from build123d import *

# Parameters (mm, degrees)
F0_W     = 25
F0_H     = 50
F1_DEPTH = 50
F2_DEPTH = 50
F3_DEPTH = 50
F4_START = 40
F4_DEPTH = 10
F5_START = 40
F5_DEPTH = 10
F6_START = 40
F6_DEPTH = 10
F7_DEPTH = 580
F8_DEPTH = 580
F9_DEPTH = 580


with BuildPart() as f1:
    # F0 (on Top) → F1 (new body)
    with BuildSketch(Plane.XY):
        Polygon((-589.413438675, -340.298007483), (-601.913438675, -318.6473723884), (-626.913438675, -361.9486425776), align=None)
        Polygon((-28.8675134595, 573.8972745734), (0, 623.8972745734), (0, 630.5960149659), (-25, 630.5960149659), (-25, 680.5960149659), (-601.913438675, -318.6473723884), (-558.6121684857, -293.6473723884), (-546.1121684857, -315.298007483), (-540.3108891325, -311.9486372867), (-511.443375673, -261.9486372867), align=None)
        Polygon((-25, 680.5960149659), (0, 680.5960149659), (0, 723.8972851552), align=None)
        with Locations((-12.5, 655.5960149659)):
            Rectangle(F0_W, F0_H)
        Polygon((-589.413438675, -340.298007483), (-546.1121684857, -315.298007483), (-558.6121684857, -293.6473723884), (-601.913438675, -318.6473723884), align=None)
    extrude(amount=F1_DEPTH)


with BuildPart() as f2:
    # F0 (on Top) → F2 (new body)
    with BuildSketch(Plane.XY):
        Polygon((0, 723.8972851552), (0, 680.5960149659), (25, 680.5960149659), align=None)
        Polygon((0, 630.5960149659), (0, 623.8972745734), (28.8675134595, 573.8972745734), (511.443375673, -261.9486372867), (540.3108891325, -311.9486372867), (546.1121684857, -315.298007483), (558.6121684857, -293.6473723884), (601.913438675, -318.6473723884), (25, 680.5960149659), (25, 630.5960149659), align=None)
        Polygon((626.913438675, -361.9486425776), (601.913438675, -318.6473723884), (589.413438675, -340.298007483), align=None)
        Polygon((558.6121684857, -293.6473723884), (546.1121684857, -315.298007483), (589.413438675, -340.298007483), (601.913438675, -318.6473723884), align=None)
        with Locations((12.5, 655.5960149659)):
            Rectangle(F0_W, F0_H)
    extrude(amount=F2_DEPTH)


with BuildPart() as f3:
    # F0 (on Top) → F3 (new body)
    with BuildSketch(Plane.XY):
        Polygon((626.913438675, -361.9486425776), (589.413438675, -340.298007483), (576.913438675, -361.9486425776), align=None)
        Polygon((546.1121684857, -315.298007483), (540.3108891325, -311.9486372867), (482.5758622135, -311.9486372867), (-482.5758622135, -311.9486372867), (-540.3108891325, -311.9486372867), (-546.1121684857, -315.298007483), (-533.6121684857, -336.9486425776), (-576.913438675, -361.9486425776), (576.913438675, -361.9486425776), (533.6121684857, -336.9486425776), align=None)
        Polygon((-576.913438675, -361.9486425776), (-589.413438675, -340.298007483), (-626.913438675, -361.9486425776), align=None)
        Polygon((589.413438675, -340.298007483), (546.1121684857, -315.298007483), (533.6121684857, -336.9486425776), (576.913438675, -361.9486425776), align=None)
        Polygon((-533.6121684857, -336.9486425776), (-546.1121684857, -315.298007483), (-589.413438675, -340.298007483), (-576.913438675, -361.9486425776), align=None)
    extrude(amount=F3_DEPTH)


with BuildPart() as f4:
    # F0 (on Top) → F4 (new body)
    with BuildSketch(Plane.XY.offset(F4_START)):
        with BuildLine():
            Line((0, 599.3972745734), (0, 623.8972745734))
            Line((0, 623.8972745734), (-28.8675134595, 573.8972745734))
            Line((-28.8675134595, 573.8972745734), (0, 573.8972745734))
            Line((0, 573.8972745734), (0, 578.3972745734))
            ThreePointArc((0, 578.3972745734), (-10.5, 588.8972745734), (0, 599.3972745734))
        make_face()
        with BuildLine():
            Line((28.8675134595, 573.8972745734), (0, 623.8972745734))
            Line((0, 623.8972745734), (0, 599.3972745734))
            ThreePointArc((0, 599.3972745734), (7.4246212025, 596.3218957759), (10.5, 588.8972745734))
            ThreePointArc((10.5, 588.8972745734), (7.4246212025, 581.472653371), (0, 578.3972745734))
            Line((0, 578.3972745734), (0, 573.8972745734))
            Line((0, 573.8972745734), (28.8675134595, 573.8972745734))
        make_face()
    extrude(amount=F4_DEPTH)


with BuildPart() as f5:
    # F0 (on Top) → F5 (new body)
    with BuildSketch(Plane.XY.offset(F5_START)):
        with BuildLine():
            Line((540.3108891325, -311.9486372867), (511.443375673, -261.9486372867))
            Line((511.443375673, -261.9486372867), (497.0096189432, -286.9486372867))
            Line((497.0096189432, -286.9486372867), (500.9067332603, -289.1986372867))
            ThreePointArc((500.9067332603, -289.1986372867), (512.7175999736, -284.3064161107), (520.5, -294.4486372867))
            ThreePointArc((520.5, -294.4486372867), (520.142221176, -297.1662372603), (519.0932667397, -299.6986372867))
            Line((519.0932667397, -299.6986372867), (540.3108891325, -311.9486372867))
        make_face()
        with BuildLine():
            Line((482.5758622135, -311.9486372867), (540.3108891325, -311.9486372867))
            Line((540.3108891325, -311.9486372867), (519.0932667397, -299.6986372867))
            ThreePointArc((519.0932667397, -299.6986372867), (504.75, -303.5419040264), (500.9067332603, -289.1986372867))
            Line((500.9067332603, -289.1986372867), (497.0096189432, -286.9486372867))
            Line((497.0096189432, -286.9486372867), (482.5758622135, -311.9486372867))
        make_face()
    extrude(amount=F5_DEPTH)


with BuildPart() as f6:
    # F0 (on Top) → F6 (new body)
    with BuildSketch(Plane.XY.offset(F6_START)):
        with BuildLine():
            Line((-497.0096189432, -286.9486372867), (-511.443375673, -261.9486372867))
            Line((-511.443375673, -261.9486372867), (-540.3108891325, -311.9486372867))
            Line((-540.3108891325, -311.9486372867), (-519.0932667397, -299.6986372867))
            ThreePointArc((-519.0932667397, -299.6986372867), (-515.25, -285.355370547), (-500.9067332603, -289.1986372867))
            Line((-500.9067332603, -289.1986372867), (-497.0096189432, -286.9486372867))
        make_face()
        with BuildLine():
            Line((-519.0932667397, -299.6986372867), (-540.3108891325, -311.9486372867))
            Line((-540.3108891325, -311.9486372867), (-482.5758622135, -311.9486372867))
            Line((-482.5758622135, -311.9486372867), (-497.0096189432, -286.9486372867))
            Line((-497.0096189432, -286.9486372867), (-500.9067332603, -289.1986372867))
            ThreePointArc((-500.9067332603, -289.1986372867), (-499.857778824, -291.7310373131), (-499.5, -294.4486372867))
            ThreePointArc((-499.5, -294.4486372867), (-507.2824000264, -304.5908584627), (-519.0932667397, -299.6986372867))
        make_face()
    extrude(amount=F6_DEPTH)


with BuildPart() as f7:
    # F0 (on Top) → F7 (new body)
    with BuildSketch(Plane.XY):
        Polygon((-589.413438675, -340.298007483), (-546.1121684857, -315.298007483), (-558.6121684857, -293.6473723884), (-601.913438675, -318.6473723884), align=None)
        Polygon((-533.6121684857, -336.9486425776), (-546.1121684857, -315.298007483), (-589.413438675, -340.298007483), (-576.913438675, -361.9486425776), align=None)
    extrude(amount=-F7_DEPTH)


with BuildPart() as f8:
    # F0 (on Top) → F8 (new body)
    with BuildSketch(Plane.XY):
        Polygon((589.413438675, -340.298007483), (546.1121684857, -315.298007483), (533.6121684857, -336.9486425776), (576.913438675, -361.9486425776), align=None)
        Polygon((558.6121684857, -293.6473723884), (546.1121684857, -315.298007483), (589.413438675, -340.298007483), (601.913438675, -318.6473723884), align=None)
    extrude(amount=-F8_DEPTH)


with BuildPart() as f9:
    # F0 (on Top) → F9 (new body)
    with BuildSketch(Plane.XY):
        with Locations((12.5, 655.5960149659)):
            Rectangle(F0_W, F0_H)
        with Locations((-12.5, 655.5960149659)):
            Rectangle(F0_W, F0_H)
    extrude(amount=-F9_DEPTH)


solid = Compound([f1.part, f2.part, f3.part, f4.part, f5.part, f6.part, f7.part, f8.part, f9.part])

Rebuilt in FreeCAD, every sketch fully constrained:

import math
import FreeCAD as App
import Part
import Sketcher
Q = App.Units.Quantity


def add_polygon(sketch, points):
    """Adds a closed chain of lines whose ends are joined by coincident constraints."""
    first, n = sketch.GeometryCount, len(points)
    for a, b in zip(points, points[1:] + points[:1]):
        sketch.addGeometry(Part.LineSegment(App.Vector(*a, 0), App.Vector(*b, 0)), False)
    for i in range(n):
        sketch.addConstraint(Sketcher.Constraint("Coincident", first + i, 2, first + (i + 1) % n, 1))

doc = App.newDocument("Part")
body = doc.addObject("PartDesign::Body", "Body")

# Sketch on XY plane
sketch1 = doc.addObject("Sketcher::SketchObject", "Sketch")
body.addObject(sketch1)
sketch1.AttachmentSupport = (doc.XY_Plane, [""])
sketch1.MapMode = "FlatFace"
add_polygon(sketch1, [(-627, -362), (-546, -315), (-540, -312), (0, 624), (0, 724)])  # lines 0-4
sketch1.addConstraint([
    Sketcher.Constraint("Vertical", 3),
    Sketcher.Constraint("PointOnObject", 2, 2, -2),
    Sketcher.Constraint("Parallel", 0, 1),
    Sketcher.Constraint("Parallel", 2, 4),
    Sketcher.Constraint("Angle", 0, Q("30 deg")),
    Sketcher.Constraint("Angle", 2, Q("60 deg")),
    Sketcher.Constraint("DistanceY", 3, 1, 3, 2, Q("100.000011 mm")),
    Sketcher.Constraint("Distance", 0, Q("93.30127 mm")),
    Sketcher.Constraint("Distance", 2, Q("1080.621778 mm")),
    Sketcher.Constraint("DistanceY", 0, 2, -1, 1, Q("315.298007 mm")),
])
pad1 = doc.addObject("PartDesign::Pad", "Pad")
body.addObject(pad1)
pad1.Profile = sketch1
pad1.Length = 50
body2 = doc.addObject("PartDesign::Body", "Body001")

# Sketch on XY plane
sketch2 = doc.addObject("Sketcher::SketchObject", "Sketch001")
body2.addObject(sketch2)
sketch2.AttachmentSupport = (doc.getObject("XY_Plane001"), [""])
sketch2.MapMode = "FlatFace"
add_polygon(sketch2, [(0, 724), (0, 624), (540, -312), (546, -315), (627, -362)])  # lines 0-4
sketch2.addConstraint([
    Sketcher.Constraint("Vertical", 0),
    Sketcher.Constraint("PointOnObject", 0, 2, -2),
    Sketcher.Constraint("Parallel", 2, 3),
    Sketcher.Constraint("Parallel", 1, 4),
    Sketcher.Constraint("Angle", 1, Q("-60 deg")),
    Sketcher.Constraint("Angle", 2, Q("-30 deg")),
    Sketcher.Constraint("DistanceY", 0, 2, 0, 1, Q("100.000011 mm")),
    Sketcher.Constraint("Distance", 1, Q("1080.621778 mm")),
    Sketcher.Constraint("Distance", 2, Q("6.69874 mm")),
    Sketcher.Constraint("DistanceY", -1, 1, 0, 2, Q("623.897275 mm")),
])
pad2 = doc.addObject("PartDesign::Pad", "Pad001")
body2.addObject(pad2)
pad2.Profile = sketch2
pad2.Length = 50
body3 = doc.addObject("PartDesign::Body", "Body002")

# Sketch on XY plane
sketch3 = doc.addObject("Sketcher::SketchObject", "Sketch002")
body3.addObject(sketch3)
sketch3.AttachmentSupport = (doc.getObject("XY_Plane002"), [""])
sketch3.MapMode = "FlatFace"
add_polygon(sketch3, [(627, -362), (546, -315), (540, -312), (-540, -312), (-546, -315), (-627, -362)])  # lines 0-5
sketch3.addConstraint([
    Sketcher.Constraint("Horizontal", 2),
    Sketcher.Constraint("Horizontal", 5),
    Sketcher.Constraint("Symmetric", 0, 2, 3, 2, -2),
    Sketcher.Constraint("Parallel", 0, 1),
    Sketcher.Constraint("Parallel", 3, 4),
    Sketcher.Constraint("Equal", 1, 3),
    Sketcher.Constraint("Angle", 0, Q("150 deg")),
    Sketcher.Constraint("DistanceX", 2, 2, 2, 1, Q("1080.621778 mm")),
    Sketcher.Constraint("Distance", 0, Q("93.30127 mm")),
    Sketcher.Constraint("Distance", 1, Q("6.69874 mm")),
    Sketcher.Constraint("DistanceY", 0, 2, -1, 1, Q("315.298007 mm")),
])
pad3 = doc.addObject("PartDesign::Pad", "Pad002")
body3.addObject(pad3)
pad3.Profile = sketch3
pad3.Length = 50
body4 = doc.addObject("PartDesign::Body", "Body003")

# Sketch on XY plane
sketch4 = doc.addObject("Sketcher::SketchObject", "Sketch003")
body4.addObject(sketch4)
sketch4.AttachmentSupport = (doc.getObject("XY_Plane003"), [""])
sketch4.MapMode = "FlatFace"
sketch4.AttachmentOffset = App.Placement(App.Vector(0, 0, 40), App.Rotation())
add_polygon(sketch4, [(0, 624), (-29, 574), (29, 574)])  # lines 0-2
sketch4.addGeometry(Part.ArcOfCircle(Part.Circle(App.Vector(0, 589, 0), App.Vector(0, 0, 1), 10), math.radians(90), math.radians(270)), False)  # 3
sketch4.addGeometry(Part.ArcOfCircle(Part.Circle(App.Vector(0, 589, 0), App.Vector(0, 0, 1), 10), math.radians(0), math.radians(90)), False)  # 4
sketch4.addGeometry(Part.ArcOfCircle(Part.Circle(App.Vector(0, 589, 0), App.Vector(0, 0, 1), 10), math.radians(-90), math.radians(0)), False)  # 5
sketch4.addConstraint([
    Sketcher.Constraint("Tangent", 3, 1, 4, 2),
    Sketcher.Constraint("Tangent", 4, 1, 5, 2),
    Sketcher.Constraint("Tangent", 5, 1, 3, 2),
    Sketcher.Constraint("Horizontal", 1),
    Sketcher.Constraint("PointOnObject", 3, 3, -2),
    Sketcher.Constraint("PointOnObject", 2, 2, -2),
    Sketcher.Constraint("PointOnObject", 3, 1, -2),
    Sketcher.Constraint("PointOnObject", 5, 1, -2),
    Sketcher.Constraint("Horizontal", 5, 3, 4, 1),
    Sketcher.Constraint("Equal", 0, 2),
    Sketcher.Constraint("Radius", 3, Q("10.5 mm")),
    Sketcher.Constraint("Angle", 0, Q("-120 deg")),
    Sketcher.Constraint("DistanceY", 0, 2, 3, 3, Q("15 mm")),
    Sketcher.Constraint("DistanceY", 4, 3, 2, 2, Q("35 mm")),
    Sketcher.Constraint("DistanceY", -1, 1, 3, 3, Q("588.897275 mm")),
])
pad4 = doc.addObject("PartDesign::Pad", "Pad003")
body4.addObject(pad4)
pad4.Profile = sketch4
pad4.Length = 10
body5 = doc.addObject("PartDesign::Body", "Body004")

# Sketch on XY plane
sketch5 = doc.addObject("Sketcher::SketchObject", "Sketch004")
body5.addObject(sketch5)
sketch5.AttachmentSupport = (doc.getObject("XY_Plane004"), [""])
sketch5.MapMode = "FlatFace"
sketch5.AttachmentOffset = App.Placement(App.Vector(0, 0, 40), App.Rotation())
add_polygon(sketch5, [(540, -312), (511, -262), (497, -287), (483, -312)])  # lines 0-3
sketch5.addGeometry(Part.ArcOfCircle(Part.Circle(App.Vector(510, -294, 0), App.Vector(0, 0, 1), 10), math.radians(0), math.radians(150)), False)  # 4
sketch5.addGeometry(Part.ArcOfCircle(Part.Circle(App.Vector(510, -294, 0), App.Vector(0, 0, 1), 10), math.radians(-30), math.radians(0)), False)  # 5
sketch5.addGeometry(Part.ArcOfCircle(Part.Circle(App.Vector(510, -294, 0), App.Vector(0, 0, 1), 10), math.radians(150), math.radians(330)), False)  # 6
sketch5.addConstraint([
    Sketcher.Constraint("Tangent", 4, 1, 5, 2),
    Sketcher.Constraint("Tangent", 5, 1, 6, 2),
    Sketcher.Constraint("Tangent", 6, 1, 4, 2),
    Sketcher.Constraint("Horizontal", 3),
    Sketcher.Constraint("Parallel", 1, 2),
    Sketcher.Constraint("Horizontal", 6, 3, 4, 1),
    Sketcher.Constraint("Equal", 1, 2),
    Sketcher.Constraint("Radius", 4, Q("10.5 mm")),
    Sketcher.Constraint("Angle", 0, Q("120 deg")),
    Sketcher.Constraint("Angle", 1, Q("-120 deg")),
    Sketcher.Constraint("DistanceX", -1, 1, 4, 3, Q("510 mm")),
    Sketcher.Constraint("DistanceY", 1, 2, 0, 2, Q("25 mm")),
    Sketcher.Constraint("DistanceY", 4, 3, 0, 2, Q("32.5 mm")),
    Sketcher.Constraint("DistanceY", 5, 1, 4, 1, Q("5.25 mm")),
    Sketcher.Constraint("DistanceY", 6, 1, 1, 2, Q("2.25 mm")),
    Sketcher.Constraint("DistanceX", -1, 1, 1, 2, Q("497.009619 mm")),
    Sketcher.Constraint("DistanceY", 4, 3, -1, 1, Q("294.448637 mm")),
])
pad5 = doc.addObject("PartDesign::Pad", "Pad004")
body5.addObject(pad5)
pad5.Profile = sketch5
pad5.Length = 10
body6 = doc.addObject("PartDesign::Body", "Body005")

# Sketch on XY plane
sketch6 = doc.addObject("Sketcher::SketchObject", "Sketch005")
body6.addObject(sketch6)
sketch6.AttachmentSupport = (doc.getObject("XY_Plane005"), [""])
sketch6.MapMode = "FlatFace"
sketch6.AttachmentOffset = App.Placement(App.Vector(0, 0, 40), App.Rotation())
add_polygon(sketch6, [(-497, -287), (-511, -262), (-540, -312), (-483, -312)])  # lines 0-3
sketch6.addGeometry(Part.ArcOfCircle(Part.Circle(App.Vector(-510, -294, 0), App.Vector(0, 0, 1), 10), math.radians(30), math.radians(210)), False)  # 4
sketch6.addGeometry(Part.ArcOfCircle(Part.Circle(App.Vector(-510, -294, 0), App.Vector(0, 0, 1), 10), math.radians(0), math.radians(30)), False)  # 5
sketch6.addGeometry(Part.ArcOfCircle(Part.Circle(App.Vector(-510, -294, 0), App.Vector(0, 0, 1), 10), math.radians(-150), math.radians(0)), False)  # 6
sketch6.addConstraint([
    Sketcher.Constraint("Tangent", 4, 1, 5, 2),
    Sketcher.Constraint("Tangent", 5, 1, 6, 2),
    Sketcher.Constraint("Tangent", 6, 1, 4, 2),
    Sketcher.Constraint("Horizontal", 2),
    Sketcher.Constraint("Parallel", 0, 3),
    Sketcher.Constraint("Horizontal", 6, 3, 5, 1),
    Sketcher.Constraint("Equal", 0, 3),
    Sketcher.Constraint("Radius", 4, Q("10.5 mm")),
    Sketcher.Constraint("Angle", 0, Q("120 deg")),
    Sketcher.Constraint("Angle", 1, Q("-120 deg")),
    Sketcher.Constraint("DistanceX", 4, 3, -1, 1, Q("510 mm")),
    Sketcher.Constraint("DistanceY", 1, 2, 0, 2, Q("50 mm")),
    Sketcher.Constraint("DistanceY", 4, 3, 0, 2, Q("32.5 mm")),
    Sketcher.Constraint("DistanceY", 6, 1, 4, 1, Q("10.5 mm")),
    Sketcher.Constraint("DistanceY", 4, 1, 3, 2, Q("2.25 mm")),
    Sketcher.Constraint("DistanceX", 1, 2, -1, 1, Q("540.310889 mm")),
    Sketcher.Constraint("DistanceY", 4, 3, -1, 1, Q("294.448637 mm")),
])
pad6 = doc.addObject("PartDesign::Pad", "Pad005")
body6.addObject(pad6)
pad6.Profile = sketch6
pad6.Length = 10
body7 = doc.addObject("PartDesign::Body", "Body006")

# Sketch on XY plane
sketch7 = doc.addObject("Sketcher::SketchObject", "Sketch006")
body7.addObject(sketch7)
sketch7.AttachmentSupport = (doc.getObject("XY_Plane006"), [""])
sketch7.MapMode = "FlatFace"
add_polygon(sketch7, [(-559, -294), (-602, -319), (-577, -362), (-534, -337)])  # lines 0-3
sketch7.addConstraint([
    Sketcher.Constraint("Perpendicular", 0, 1),
    Sketcher.Constraint("Perpendicular", 1, 2),
    Sketcher.Constraint("Perpendicular", 2, 3),
    Sketcher.Constraint("Equal", 0, 1),
    Sketcher.Constraint("Angle", 0, Q("-150 deg")),
    Sketcher.Constraint("Distance", 0, Q("50 mm")),
    Sketcher.Constraint("DistanceX", 0, 2, -1, 1, Q("601.913439 mm")),
    Sketcher.Constraint("DistanceY", 0, 2, -1, 1, Q("318.647372 mm")),
])
pad7 = doc.addObject("PartDesign::Pad", "Pad006")
body7.addObject(pad7)
pad7.Profile = sketch7
pad7.Length = 580
pad7.Reversed = True
body8 = doc.addObject("PartDesign::Body", "Body007")

# Sketch on XY plane
sketch8 = doc.addObject("Sketcher::SketchObject", "Sketch007")
body8.addObject(sketch8)
sketch8.AttachmentSupport = (doc.getObject("XY_Plane007"), [""])
sketch8.MapMode = "FlatFace"
add_polygon(sketch8, [(534, -337), (577, -362), (602, -319), (559, -294)])  # lines 0-3
sketch8.addConstraint([
    Sketcher.Constraint("Perpendicular", 0, 1),
    Sketcher.Constraint("Perpendicular", 1, 2),
    Sketcher.Constraint("Perpendicular", 2, 3),
    Sketcher.Constraint("Equal", 0, 1),
    Sketcher.Constraint("Angle", 0, Q("-30 deg")),
    Sketcher.Constraint("Distance", 0, Q("50 mm")),
    Sketcher.Constraint("DistanceX", -1, 1, 0, 2, Q("576.913439 mm")),
    Sketcher.Constraint("DistanceY", 0, 2, -1, 1, Q("361.948643 mm")),
])
pad8 = doc.addObject("PartDesign::Pad", "Pad007")
body8.addObject(pad8)
pad8.Profile = sketch8
pad8.Length = 580
pad8.Reversed = True
body9 = doc.addObject("PartDesign::Body", "Body008")

# Sketch on XY plane
sketch9 = doc.addObject("Sketcher::SketchObject", "Sketch008")
body9.addObject(sketch9)
sketch9.AttachmentSupport = (doc.getObject("XY_Plane008"), [""])
sketch9.MapMode = "FlatFace"
add_polygon(sketch9, [(25, 631), (25, 681), (-25, 681), (-25, 631)])  # lines 0-3
sketch9.addConstraint([
    Sketcher.Constraint("Vertical", 0),
    Sketcher.Constraint("Horizontal", 1),
    Sketcher.Constraint("Vertical", 2),
    Sketcher.Constraint("Horizontal", 3),
    Sketcher.Constraint("Equal", 3, 0),
    Sketcher.Constraint("DistanceX", 1, 2, 1, 1, Q("50 mm")),
    Sketcher.Constraint("DistanceX", -1, 1, 0, 2, Q("25 mm")),
    Sketcher.Constraint("DistanceY", -1, 1, 0, 2, Q("680.596015 mm")),
])
pad9 = doc.addObject("PartDesign::Pad", "Pad008")
body9.addObject(pad9)
pad9.Profile = sketch9
pad9.Length = 580
pad9.Reversed = True

doc.recompute()
